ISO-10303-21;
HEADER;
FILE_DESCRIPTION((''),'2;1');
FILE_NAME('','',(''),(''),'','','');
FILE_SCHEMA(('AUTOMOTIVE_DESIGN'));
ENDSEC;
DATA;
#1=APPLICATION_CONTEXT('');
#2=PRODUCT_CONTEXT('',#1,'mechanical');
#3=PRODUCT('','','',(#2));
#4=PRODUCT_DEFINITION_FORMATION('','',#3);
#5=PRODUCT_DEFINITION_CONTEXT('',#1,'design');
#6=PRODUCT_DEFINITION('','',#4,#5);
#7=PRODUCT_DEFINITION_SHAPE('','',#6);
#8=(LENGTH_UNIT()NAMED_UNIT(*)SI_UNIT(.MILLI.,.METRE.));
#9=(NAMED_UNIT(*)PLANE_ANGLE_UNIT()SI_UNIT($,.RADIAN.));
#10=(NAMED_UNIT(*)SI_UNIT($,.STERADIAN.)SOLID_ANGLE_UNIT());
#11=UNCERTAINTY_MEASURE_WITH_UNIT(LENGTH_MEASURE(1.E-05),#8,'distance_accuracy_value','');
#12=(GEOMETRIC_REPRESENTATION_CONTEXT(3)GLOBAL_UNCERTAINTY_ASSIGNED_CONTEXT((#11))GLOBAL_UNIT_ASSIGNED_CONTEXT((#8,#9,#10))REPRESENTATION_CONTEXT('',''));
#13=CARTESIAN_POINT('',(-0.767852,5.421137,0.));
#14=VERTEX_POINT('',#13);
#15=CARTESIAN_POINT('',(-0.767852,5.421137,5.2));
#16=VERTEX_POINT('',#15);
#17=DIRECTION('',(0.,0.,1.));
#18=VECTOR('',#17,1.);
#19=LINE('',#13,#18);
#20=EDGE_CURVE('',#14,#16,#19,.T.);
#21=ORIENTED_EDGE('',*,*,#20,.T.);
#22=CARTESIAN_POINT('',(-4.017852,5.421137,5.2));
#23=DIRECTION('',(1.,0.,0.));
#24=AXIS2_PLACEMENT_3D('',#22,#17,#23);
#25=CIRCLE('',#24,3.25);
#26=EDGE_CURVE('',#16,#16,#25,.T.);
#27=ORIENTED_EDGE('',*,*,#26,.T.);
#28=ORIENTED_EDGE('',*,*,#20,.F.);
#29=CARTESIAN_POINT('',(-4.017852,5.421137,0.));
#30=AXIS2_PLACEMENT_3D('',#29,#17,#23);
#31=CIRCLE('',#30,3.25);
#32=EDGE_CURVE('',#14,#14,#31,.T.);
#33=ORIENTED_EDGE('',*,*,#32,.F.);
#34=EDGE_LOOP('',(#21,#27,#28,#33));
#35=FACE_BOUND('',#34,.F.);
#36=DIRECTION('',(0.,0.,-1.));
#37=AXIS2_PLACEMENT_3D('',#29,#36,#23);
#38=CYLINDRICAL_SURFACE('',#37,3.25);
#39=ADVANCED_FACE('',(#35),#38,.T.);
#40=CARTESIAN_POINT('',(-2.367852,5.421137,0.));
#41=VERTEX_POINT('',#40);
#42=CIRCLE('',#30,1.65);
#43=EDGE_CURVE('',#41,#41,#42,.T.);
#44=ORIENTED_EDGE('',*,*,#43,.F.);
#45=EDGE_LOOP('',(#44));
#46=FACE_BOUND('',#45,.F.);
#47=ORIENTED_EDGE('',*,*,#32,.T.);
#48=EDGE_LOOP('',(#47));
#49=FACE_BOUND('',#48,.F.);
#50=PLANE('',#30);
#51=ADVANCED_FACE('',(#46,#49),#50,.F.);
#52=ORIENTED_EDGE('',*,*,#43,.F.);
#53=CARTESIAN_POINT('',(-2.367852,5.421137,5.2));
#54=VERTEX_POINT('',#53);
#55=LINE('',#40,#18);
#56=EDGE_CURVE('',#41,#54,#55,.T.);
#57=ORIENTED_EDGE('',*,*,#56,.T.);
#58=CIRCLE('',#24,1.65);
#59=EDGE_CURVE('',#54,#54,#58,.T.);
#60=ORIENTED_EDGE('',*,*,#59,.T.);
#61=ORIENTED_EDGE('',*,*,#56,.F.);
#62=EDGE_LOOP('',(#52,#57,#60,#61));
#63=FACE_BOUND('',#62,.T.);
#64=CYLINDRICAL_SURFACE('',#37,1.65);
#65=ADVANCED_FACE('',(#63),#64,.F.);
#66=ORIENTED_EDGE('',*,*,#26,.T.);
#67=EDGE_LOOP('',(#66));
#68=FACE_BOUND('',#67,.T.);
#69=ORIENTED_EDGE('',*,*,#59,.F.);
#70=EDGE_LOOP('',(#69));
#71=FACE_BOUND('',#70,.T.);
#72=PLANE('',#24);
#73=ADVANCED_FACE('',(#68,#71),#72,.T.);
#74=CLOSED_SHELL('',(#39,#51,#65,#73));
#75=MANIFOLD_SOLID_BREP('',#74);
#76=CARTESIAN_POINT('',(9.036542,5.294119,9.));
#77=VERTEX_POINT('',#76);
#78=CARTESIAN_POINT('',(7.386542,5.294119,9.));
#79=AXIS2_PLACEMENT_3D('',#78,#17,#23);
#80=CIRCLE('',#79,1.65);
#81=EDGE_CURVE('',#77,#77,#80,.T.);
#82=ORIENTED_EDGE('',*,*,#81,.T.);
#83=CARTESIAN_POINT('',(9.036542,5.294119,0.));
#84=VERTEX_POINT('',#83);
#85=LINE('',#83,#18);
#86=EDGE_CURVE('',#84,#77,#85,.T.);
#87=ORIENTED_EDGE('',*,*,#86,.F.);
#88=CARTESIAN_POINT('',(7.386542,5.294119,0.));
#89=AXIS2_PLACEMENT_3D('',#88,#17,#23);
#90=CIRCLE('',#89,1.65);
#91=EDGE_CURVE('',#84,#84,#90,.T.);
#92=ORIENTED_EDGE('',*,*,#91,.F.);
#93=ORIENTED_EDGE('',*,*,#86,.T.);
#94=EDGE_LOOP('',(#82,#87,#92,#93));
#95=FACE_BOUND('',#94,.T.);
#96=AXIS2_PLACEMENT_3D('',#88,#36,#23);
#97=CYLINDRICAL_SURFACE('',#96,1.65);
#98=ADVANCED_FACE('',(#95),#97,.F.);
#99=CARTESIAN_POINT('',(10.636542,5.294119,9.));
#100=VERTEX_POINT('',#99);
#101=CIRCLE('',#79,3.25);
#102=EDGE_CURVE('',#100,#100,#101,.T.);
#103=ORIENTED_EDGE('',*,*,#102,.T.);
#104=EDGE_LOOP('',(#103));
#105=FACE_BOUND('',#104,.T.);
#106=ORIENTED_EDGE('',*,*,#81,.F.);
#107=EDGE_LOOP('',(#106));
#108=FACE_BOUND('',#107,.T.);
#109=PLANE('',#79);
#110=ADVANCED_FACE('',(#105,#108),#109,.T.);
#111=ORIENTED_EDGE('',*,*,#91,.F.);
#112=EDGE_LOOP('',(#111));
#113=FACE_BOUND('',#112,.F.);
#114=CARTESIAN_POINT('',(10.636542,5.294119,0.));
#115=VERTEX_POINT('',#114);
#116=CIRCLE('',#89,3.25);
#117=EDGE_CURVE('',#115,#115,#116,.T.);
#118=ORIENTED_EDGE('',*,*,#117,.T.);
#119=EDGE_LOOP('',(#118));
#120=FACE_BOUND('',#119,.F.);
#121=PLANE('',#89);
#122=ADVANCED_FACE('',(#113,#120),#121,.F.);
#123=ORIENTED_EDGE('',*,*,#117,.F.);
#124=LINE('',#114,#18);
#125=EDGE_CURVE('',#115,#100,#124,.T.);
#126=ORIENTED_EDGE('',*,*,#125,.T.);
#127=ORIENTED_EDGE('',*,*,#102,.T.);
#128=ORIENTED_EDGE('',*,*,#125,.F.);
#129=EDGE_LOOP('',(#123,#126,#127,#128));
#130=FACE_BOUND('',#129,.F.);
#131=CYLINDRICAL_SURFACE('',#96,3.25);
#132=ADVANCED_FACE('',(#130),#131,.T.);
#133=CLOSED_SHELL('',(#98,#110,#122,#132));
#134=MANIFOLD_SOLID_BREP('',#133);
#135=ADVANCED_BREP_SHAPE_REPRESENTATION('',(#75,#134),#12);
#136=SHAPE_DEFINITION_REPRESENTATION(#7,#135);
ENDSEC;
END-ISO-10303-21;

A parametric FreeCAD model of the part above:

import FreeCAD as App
import Part
import Sketcher
Q = App.Units.Quantity

doc = App.newDocument("Part")
body = doc.addObject("PartDesign::Body", "Body")

sketch1 = body.newObject("Sketcher::SketchObject", "Sketch")
sketch1.AttachmentSupport = (doc.getObject("XY_Plane"), [""])
sketch1.MapMode = "FlatFace"
sketch1.addGeometry([
    Part.Circle(App.Vector(-4.017852, 5.421137, 0), App.Vector(0, 0, 1), 3.25),
    Part.Circle(App.Vector(-4.017852, 5.421137, 0), App.Vector(0, 0, 1), 1.65),
], False)
sketch1.addConstraint([
    Sketcher.Constraint("Coincident", 1, 3, 0, 3),
    Sketcher.Constraint("Diameter", 0, Q("6.5 mm")),
    Sketcher.Constraint("Diameter", 1, Q("3.3 mm")),
    Sketcher.Constraint("DistanceX", 0, 3, -1, 1, Q("4.017852 mm")),
    Sketcher.Constraint("DistanceY", -1, 1, 0, 3, Q("5.421137 mm")),
])
pad1 = body.newObject("PartDesign::Pad", "Pad")
pad1.Profile = sketch1
pad1.Length = 5.2
body2 = doc.addObject("PartDesign::Body", "Body001")

sketch2 = body2.newObject("Sketcher::SketchObject", "Sketch001")
sketch2.AttachmentSupport = (doc.getObject("XY_Plane001"), [""])
sketch2.MapMode = "FlatFace"
sketch2.addGeometry([
    Part.Circle(App.Vector(7.386542, 5.294119, 0), App.Vector(0, 0, 1), 3.25),
    Part.Circle(App.Vector(7.386542, 5.294119, 0), App.Vector(0, 0, 1), 1.65),
], False)
sketch2.addConstraint([
    Sketcher.Constraint("Coincident", 1, 3, 0, 3),
    Sketcher.Constraint("Diameter", 0, Q("6.5 mm")),
    Sketcher.Constraint("Diameter", 1, Q("3.3 mm")),
    Sketcher.Constraint("DistanceY", -1, 1, 0, 3, Q("5.294119 mm")),
    Sketcher.Constraint("DistanceX", -1, 1, 0, 3, Q("7.386542 mm")),
])
pad2 = body2.newObject("PartDesign::Pad", "Pad001")
pad2.Profile = sketch2
pad2.Length = 9

doc.recompute()
